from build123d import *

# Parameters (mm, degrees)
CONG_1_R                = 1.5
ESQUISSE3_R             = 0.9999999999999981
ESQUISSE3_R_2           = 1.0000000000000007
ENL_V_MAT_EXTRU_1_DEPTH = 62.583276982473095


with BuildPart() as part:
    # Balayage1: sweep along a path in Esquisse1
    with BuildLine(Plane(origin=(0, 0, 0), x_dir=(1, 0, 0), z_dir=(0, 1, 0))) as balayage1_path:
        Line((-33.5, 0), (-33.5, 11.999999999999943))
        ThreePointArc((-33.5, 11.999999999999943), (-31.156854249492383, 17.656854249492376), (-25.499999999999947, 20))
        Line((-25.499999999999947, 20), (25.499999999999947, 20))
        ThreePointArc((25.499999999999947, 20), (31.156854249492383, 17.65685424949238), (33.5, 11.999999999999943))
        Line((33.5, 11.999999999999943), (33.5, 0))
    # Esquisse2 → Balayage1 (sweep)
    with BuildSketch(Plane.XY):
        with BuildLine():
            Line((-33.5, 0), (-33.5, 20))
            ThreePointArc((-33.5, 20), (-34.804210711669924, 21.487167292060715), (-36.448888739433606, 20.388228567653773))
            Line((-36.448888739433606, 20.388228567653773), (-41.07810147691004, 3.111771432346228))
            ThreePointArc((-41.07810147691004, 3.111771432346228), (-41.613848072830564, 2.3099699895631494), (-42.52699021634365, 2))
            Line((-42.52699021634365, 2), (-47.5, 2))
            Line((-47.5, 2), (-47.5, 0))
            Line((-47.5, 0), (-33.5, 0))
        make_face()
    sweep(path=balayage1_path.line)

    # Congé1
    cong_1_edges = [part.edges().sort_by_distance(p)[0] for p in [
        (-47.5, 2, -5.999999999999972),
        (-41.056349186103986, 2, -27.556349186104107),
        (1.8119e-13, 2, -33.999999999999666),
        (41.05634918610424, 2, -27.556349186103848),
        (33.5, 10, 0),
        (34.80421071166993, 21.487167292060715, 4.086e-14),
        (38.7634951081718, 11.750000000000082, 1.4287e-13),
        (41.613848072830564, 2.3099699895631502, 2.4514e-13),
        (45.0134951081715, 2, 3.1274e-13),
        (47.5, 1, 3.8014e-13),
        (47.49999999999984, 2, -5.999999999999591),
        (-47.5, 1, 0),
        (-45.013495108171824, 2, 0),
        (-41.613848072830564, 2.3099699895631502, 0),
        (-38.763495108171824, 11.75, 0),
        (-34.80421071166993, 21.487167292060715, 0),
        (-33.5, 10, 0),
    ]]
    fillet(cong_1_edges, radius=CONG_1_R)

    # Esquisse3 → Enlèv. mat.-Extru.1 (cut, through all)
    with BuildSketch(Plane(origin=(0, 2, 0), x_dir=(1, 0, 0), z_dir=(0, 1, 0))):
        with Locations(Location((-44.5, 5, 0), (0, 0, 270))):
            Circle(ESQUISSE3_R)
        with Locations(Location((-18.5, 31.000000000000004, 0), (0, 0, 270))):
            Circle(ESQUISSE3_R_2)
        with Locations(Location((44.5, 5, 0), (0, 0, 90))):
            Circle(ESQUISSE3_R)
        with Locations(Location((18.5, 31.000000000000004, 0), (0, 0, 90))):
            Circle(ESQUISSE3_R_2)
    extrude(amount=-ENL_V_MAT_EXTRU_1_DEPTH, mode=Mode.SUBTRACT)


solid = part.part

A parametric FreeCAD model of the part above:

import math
import FreeCAD as App
import Part
import Sketcher
Q = App.Units.Quantity


def edges_at(feature, points):
    """Names of the edges that pass closest to the given points."""
    edges = feature.Shape.Edges
    near = lambda p: min(range(len(edges)), key=lambda i: edges[i].distToShape(Part.Vertex(*p))[0])
    return sorted({f"Edge{near(p) + 1}" for p in points})

doc = App.newDocument("Part")
body = doc.addObject("PartDesign::Body", "Body")

# Sketch on XY plane
sketch1 = body.newObject("Sketcher::SketchObject", "Sketch")
sketch1.AttachmentSupport = (doc.getObject("XY_Plane"), [""])
sketch1.MapMode = "FlatFace"
sketch1.addGeometry(Part.LineSegment(App.Vector(-33.5, 0, 0), App.Vector(-33.5, 20, 0)), False)
sketch1.addGeometry(Part.ArcOfCircle(Part.Circle(App.Vector(-35, 20, 0), App.Vector(0, 0, 1), 1.5), math.radians(0), math.radians(165)), False)
sketch1.addGeometry(Part.LineSegment(App.Vector(-36.4, 20.4, 0), App.Vector(-41.1, 3.1, 0)), False)
sketch1.addGeometry(Part.ArcOfCircle(Part.Circle(App.Vector(-42.5, 3.5, 0), App.Vector(0, 0, 1), 1.5), math.radians(-90), math.radians(-15)), False)
sketch1.addGeometry(Part.LineSegment(App.Vector(-42.5, 2, 0), App.Vector(-47.5, 2, 0)), False)
sketch1.addGeometry(Part.LineSegment(App.Vector(-47.5, 2, 0), App.Vector(-47.5, 0, 0)), False)
sketch1.addGeometry(Part.LineSegment(App.Vector(-47.5, 0, 0), App.Vector(-33.5, 0, 0)), False)
sketch1.addConstraint(Sketcher.Constraint("Tangent", 0, 2, 1, 1))
sketch1.addConstraint(Sketcher.Constraint("Tangent", 1, 2, 2, 1))
sketch1.addConstraint(Sketcher.Constraint("Tangent", 2, 2, 3, 2))
sketch1.addConstraint(Sketcher.Constraint("Tangent", 3, 1, 4, 1))
sketch1.addConstraint(Sketcher.Constraint("Coincident", 4, 2, 5, 1))
sketch1.addConstraint(Sketcher.Constraint("Coincident", 5, 2, 6, 1))
sketch1.addConstraint(Sketcher.Constraint("Coincident", 6, 2, 0, 1))
sketch1.addConstraint(Sketcher.Constraint("Vertical", 0))
sketch1.addConstraint(Sketcher.Constraint("Horizontal", 4))
sketch1.addConstraint(Sketcher.Constraint("Vertical", 5))
sketch1.addConstraint(Sketcher.Constraint("Horizontal", 6))
sketch1.addConstraint(Sketcher.Constraint("Equal", 1, 3))
sketch1.addConstraint(Sketcher.Constraint("PointOnObject", 5, 2, -1))
sketch1.addConstraint(Sketcher.Constraint("Radius", 1, Q("1.5 mm")))
sketch1.addConstraint(Sketcher.Constraint("DistanceX", 6, 1, 6, 2, Q("14 mm")))
sketch1.addConstraint(Sketcher.Constraint("DistanceY", 0, 1, 0, 2, Q("20 mm")))
sketch1.addConstraint(Sketcher.Constraint("DistanceY", 5, 2, 5, 1, Q("2 mm")))
sketch1.addConstraint(Sketcher.Constraint("Angle", 2, Q("-105 deg")))
sketch1.addConstraint(Sketcher.Constraint("DistanceX", 1, 3, -1, 1, Q("35 mm")))

# Sketch on XZ plane
sketch2 = body.newObject("Sketcher::SketchObject", "Sketch001")
sketch2.AttachmentSupport = (doc.getObject("XZ_Plane"), [""])
sketch2.MapMode = "FlatFace"
sketch2.addGeometry(Part.LineSegment(App.Vector(-34, 0, 0), App.Vector(-34, -12, 0)), False)
sketch2.addGeometry(Part.ArcOfCircle(Part.Circle(App.Vector(-26, -12, 0), App.Vector(0, 0, 1), 8), math.radians(180), math.radians(270)), False)
sketch2.addGeometry(Part.LineSegment(App.Vector(-26, -20, 0), App.Vector(26, -20, 0)), False)
sketch2.addGeometry(Part.ArcOfCircle(Part.Circle(App.Vector(26, -12, 0), App.Vector(0, 0, 1), 8), math.radians(-90), math.radians(0)), False)
sketch2.addGeometry(Part.LineSegment(App.Vector(34, -12, 0), App.Vector(34, 0, 0)), False)
sketch2.addConstraint(Sketcher.Constraint("Tangent", 0, 2, 1, 1))
sketch2.addConstraint(Sketcher.Constraint("Tangent", 1, 2, 2, 1))
sketch2.addConstraint(Sketcher.Constraint("Tangent", 2, 2, 3, 1))
sketch2.addConstraint(Sketcher.Constraint("Tangent", 3, 2, 4, 1))
sketch2.addConstraint(Sketcher.Constraint("Vertical", 0))
sketch2.addConstraint(Sketcher.Constraint("Horizontal", 2))
sketch2.addConstraint(Sketcher.Constraint("Vertical", 4))
sketch2.addConstraint(Sketcher.Constraint("Equal", 1, 3))
sketch2.addConstraint(Sketcher.Constraint("Symmetric", 0, 1, 4, 2, -1, 1))
sketch2.addConstraint(Sketcher.Constraint("PointOnObject", 0, 1, -1))
sketch2.addConstraint(Sketcher.Constraint("Radius", 1, Q("8 mm")))
sketch2.addConstraint(Sketcher.Constraint("DistanceX", 2, 1, 2, 2, Q("51 mm")))
sketch2.addConstraint(Sketcher.Constraint("DistanceY", 0, 2, 0, 1, Q("12 mm")))
doc.recompute()

additivepipe = body.newObject("PartDesign::AdditivePipe", "AdditivePipe")
additivepipe.Profile = sketch1
additivepipe.Spine = (sketch2, ["Edge1", "Edge2", "Edge3", "Edge4", "Edge5"])
doc.recompute()

fillet = body.newObject("PartDesign::Fillet", "Fillet")
fillet.Base = (additivepipe, edges_at(additivepipe, [
    (-47.5, 2, -6),
    (-41.056, 2, -27.556),
    (0, 2, -34),
    (41.056, 2, -27.556),
    (33.5, 10, 0),
    (34.804, 21.487, 0),
    (38.763, 11.75, 0),
    (41.614, 2.31, 0),
    (45.013, 2, 0),
    (47.5, 1, 0),
    (47.5, 2, -6),
    (-47.5, 1, 0),
    (-45.013, 2, 0),
    (-41.614, 2.31, 0),
    (-38.763, 11.75, 0),
    (-34.804, 21.487, 0),
    (-33.5, 10, 0),
]))
fillet.Radius = 1.5

# Sketch on XZ plane
sketch3 = body.newObject("Sketcher::SketchObject", "Sketch002")
sketch3.AttachmentSupport = (doc.getObject("XZ_Plane"), [""])
sketch3.MapMode = "FlatFace"
sketch3.AttachmentOffset = App.Placement(App.Vector(0, 0, -2), App.Rotation())
sketch3.addGeometry(Part.Circle(App.Vector(-44.5, -5, 0), App.Vector(0, 0, 1), 1), False)
sketch3.addGeometry(Part.Circle(App.Vector(-18.5, -31, 0), App.Vector(0, 0, 1), 1), False)
sketch3.addGeometry(Part.Circle(App.Vector(44.5, -5, 0), App.Vector(0, 0, 1), 1), False)
sketch3.addGeometry(Part.Circle(App.Vector(18.5, -31, 0), App.Vector(0, 0, 1), 1), False)
sketch3.addConstraint(Sketcher.Constraint("Equal", 0, 1))
sketch3.addConstraint(Sketcher.Constraint("Equal", 1, 2))
sketch3.addConstraint(Sketcher.Constraint("Equal", 2, 3))
sketch3.addConstraint(Sketcher.Constraint("Symmetric", 0, 3, 2, 3, -2))
sketch3.addConstraint(Sketcher.Constraint("Symmetric", 1, 3, 3, 3, -2))
sketch3.addConstraint(Sketcher.Constraint("Diameter", 0, Q("2 mm")))
sketch3.addConstraint(Sketcher.Constraint("DistanceY", 0, 3, -1, 1, Q("5 mm")))
sketch3.addConstraint(Sketcher.Constraint("DistanceY", 1, 3, -1, 1, Q("31 mm")))
sketch3.addConstraint(Sketcher.Constraint("DistanceX", 0, 3, 1, 3, Q("26 mm")))
sketch3.addConstraint(Sketcher.Constraint("DistanceX", 1, 3, 2, 3, Q("63 mm")))
pocket1 = body.newObject("PartDesign::Pocket", "Pocket")
pocket1.Profile = sketch3
pocket1.Type = "ThroughAll"
pocket1.Reversed = True

doc.recompute()
